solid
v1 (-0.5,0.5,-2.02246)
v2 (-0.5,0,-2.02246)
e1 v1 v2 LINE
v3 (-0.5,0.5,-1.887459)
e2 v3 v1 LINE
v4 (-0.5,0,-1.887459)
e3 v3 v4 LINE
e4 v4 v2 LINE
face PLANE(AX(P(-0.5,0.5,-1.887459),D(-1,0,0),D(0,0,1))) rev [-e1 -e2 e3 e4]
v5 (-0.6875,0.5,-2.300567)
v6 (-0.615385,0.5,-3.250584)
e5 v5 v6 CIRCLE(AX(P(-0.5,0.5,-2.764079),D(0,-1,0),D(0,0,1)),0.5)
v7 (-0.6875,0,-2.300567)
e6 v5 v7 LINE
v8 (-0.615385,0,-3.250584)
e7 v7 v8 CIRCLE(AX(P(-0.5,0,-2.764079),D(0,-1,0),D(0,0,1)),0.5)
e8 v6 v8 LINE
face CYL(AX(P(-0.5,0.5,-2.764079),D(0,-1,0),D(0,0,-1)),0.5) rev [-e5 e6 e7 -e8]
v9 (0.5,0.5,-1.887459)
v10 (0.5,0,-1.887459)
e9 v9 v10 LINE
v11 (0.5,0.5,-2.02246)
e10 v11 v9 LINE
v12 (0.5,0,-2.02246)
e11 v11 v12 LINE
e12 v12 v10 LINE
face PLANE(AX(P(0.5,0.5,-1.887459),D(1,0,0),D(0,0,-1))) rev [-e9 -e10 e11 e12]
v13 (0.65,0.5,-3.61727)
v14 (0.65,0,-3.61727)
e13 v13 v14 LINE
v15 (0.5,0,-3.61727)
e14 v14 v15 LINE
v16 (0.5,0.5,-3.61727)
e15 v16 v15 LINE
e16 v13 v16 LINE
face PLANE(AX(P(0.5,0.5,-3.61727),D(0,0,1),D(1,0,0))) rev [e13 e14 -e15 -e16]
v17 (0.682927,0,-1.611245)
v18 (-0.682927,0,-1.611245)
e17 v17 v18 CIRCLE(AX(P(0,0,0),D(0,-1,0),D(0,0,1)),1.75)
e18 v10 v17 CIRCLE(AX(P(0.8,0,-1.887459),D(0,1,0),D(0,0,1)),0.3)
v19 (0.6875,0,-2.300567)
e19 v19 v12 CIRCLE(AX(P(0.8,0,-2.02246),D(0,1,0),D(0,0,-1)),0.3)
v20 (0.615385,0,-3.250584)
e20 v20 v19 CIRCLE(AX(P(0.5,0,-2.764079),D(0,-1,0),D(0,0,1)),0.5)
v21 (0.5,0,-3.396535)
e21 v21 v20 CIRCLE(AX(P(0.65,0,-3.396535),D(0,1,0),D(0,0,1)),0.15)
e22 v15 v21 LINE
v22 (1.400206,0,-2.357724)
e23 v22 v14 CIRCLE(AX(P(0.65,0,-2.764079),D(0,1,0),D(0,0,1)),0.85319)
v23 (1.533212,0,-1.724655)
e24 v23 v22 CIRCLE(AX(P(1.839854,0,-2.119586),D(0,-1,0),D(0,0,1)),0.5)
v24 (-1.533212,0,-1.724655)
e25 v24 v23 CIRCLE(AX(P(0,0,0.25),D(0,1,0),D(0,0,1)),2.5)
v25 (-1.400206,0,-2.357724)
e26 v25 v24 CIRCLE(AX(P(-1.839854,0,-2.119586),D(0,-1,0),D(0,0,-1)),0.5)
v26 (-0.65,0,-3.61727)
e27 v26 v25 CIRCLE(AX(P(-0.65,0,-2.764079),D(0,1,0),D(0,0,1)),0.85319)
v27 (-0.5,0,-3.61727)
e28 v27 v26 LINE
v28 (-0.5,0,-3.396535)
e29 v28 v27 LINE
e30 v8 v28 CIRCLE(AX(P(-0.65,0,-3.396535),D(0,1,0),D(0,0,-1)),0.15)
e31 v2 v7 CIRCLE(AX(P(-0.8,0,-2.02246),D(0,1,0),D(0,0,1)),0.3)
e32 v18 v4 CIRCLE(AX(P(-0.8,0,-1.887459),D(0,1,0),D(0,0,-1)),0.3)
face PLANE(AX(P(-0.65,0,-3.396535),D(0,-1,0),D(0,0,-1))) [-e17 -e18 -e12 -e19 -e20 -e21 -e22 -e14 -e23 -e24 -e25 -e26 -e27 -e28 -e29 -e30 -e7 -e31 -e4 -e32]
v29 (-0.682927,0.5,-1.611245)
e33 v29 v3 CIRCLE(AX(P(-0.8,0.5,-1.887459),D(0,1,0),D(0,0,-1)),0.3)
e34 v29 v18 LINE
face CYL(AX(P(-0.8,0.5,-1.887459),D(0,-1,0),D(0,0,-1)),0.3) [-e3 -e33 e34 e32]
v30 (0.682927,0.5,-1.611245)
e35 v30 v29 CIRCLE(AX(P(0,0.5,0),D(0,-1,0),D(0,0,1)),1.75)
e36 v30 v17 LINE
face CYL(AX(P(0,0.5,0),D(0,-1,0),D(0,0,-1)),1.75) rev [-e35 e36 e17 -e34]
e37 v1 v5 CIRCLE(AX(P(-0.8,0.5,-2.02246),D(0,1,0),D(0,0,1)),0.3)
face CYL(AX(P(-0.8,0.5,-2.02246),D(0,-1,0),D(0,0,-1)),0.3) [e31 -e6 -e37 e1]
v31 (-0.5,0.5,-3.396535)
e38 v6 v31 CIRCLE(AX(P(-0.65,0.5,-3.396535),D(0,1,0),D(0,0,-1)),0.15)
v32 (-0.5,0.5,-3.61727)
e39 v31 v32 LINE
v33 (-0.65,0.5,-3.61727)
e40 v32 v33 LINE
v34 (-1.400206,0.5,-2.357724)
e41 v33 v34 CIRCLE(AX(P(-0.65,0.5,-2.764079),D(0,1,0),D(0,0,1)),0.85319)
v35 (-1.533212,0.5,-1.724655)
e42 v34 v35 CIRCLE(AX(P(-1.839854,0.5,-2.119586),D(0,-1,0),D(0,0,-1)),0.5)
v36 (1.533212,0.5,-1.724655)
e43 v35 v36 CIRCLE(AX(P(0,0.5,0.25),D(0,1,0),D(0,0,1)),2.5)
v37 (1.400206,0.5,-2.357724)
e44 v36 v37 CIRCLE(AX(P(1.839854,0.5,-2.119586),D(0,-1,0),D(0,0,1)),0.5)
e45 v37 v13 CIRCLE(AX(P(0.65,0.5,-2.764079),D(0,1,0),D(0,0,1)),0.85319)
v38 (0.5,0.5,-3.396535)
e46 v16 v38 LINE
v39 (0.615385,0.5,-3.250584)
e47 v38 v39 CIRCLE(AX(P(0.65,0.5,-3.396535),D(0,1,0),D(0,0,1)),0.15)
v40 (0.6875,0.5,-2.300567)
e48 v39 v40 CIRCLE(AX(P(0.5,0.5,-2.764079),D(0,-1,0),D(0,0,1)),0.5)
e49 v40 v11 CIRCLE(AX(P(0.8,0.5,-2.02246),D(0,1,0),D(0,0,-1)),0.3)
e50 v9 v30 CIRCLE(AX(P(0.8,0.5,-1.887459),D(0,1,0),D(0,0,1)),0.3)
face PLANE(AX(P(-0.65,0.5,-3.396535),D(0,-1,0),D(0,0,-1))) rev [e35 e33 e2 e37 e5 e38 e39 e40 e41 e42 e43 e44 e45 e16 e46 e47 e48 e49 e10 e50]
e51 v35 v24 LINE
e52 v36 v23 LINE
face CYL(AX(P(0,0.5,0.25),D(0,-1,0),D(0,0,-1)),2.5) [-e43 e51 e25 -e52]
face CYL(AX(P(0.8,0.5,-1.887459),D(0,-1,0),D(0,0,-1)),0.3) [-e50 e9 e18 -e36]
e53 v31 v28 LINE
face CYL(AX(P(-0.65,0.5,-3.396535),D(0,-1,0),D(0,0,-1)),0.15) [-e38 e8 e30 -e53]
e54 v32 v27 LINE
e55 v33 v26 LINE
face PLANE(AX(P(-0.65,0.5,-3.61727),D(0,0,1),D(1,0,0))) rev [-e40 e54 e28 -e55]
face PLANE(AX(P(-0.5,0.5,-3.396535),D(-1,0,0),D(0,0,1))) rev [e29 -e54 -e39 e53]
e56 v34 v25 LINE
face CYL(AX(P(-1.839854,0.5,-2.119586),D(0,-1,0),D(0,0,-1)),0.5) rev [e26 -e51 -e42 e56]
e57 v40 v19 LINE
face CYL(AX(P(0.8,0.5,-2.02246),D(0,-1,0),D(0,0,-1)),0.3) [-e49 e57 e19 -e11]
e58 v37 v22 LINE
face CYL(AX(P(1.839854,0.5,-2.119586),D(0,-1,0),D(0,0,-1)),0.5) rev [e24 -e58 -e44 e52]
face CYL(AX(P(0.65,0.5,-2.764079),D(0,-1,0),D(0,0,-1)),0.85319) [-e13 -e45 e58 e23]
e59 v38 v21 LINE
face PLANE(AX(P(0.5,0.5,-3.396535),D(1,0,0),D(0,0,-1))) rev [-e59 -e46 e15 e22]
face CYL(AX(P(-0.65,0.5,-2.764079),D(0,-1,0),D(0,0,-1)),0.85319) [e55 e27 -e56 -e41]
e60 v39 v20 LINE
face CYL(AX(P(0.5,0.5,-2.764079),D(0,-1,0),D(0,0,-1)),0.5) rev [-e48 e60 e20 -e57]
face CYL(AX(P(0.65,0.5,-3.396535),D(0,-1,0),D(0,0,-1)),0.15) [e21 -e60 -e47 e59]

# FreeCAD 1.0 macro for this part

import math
import FreeCAD as App
import Part
import Sketcher

V = App.Vector

doc = App.newDocument("Part")
body = doc.addObject("PartDesign::Body", "Body")

# Sketch on XZ plane
sketch1 = body.newObject("Sketcher::SketchObject", "Sketch")
sketch1.AttachmentSupport = (doc.getObject("XZ_Plane"), [""])
sketch1.MapMode = "FlatFace"
sketch1.addGeometry([
    Part.LineSegment(V(-0.5, -3.4, 0), V(-0.5, -3.62, 0)),  # 0
    Part.LineSegment(V(-0.5, -3.62, 0), V(-0.65, -3.62, 0)),  # 1
    Part.ArcOfCircle(Part.Circle(V(-0.65, -2.76, 0), V(0, 0, 1), 0.85), math.radians(152), math.radians(270)),  # 2
    Part.ArcOfCircle(Part.Circle(V(-1.84, -2.12, 0), V(0, 0, 1), 0.5), math.radians(-28), math.radians(52)),  # 3
    Part.ArcOfCircle(Part.Circle(V(0, 0.25, 0), V(0, 0, 1), 2.5), math.radians(-52), math.radians(232)),  # 4
    Part.ArcOfCircle(Part.Circle(V(1.84, -2.12, 0), V(0, 0, 1), 0.5), math.radians(128), math.radians(208)),  # 5
    Part.ArcOfCircle(Part.Circle(V(0.65, -2.76, 0), V(0, 0, 1), 0.85), math.radians(-90), math.radians(28)),  # 6
    Part.LineSegment(V(0.65, -3.62, 0), V(0.5, -3.62, 0)),  # 7
    Part.LineSegment(V(0.5, -3.62, 0), V(0.5, -3.4, 0)),  # 8
    Part.ArcOfCircle(Part.Circle(V(0.65, -3.4, 0), V(0, 0, 1), 0.15), math.radians(103), math.radians(180)),  # 9
    Part.ArcOfCircle(Part.Circle(V(0.5, -2.76, 0), V(0, 0, 1), 0.5), math.radians(-77), math.radians(68)),  # 10
    Part.ArcOfCircle(Part.Circle(V(0.8, -2.02, 0), V(0, 0, 1), 0.3), math.radians(180), math.radians(248)),  # 11
    Part.LineSegment(V(0.5, -2.02, 0), V(0.5, -1.89, 0)),  # 12
    Part.ArcOfCircle(Part.Circle(V(0.8, -1.89, 0), V(0, 0, 1), 0.3), math.radians(113), math.radians(180)),  # 13
    Part.ArcOfCircle(Part.Circle(V(0, 0, 0), V(0, 0, 1), 1.75), math.radians(-67), math.radians(247)),  # 14
    Part.ArcOfCircle(Part.Circle(V(-0.8, -1.89, 0), V(0, 0, 1), 0.3), math.radians(0), math.radians(67)),  # 15
    Part.LineSegment(V(-0.5, -1.89, 0), V(-0.5, -2.02, 0)),  # 16
    Part.ArcOfCircle(Part.Circle(V(-0.8, -2.02, 0), V(0, 0, 1), 0.3), math.radians(-68), math.radians(0)),  # 17
    Part.ArcOfCircle(Part.Circle(V(-0.5, -2.76, 0), V(0, 0, 1), 0.5), math.radians(112), math.radians(257)),  # 18
    Part.ArcOfCircle(Part.Circle(V(-0.65, -3.4, 0), V(0, 0, 1), 0.15), math.radians(0), math.radians(77)),  # 19
], False)
sketch1.addConstraint([
    Sketcher.Constraint("Coincident", 0, 2, 1, 1),
    Sketcher.Constraint("Tangent", 1, 2, 2, 2),
    Sketcher.Constraint("Tangent", 2, 1, 3, 1),
    Sketcher.Constraint("Tangent", 3, 2, 4, 2),
    Sketcher.Constraint("Tangent", 4, 1, 5, 1),
    Sketcher.Constraint("Tangent", 5, 2, 6, 2),
    Sketcher.Constraint("Tangent", 6, 1, 7, 1),
    Sketcher.Constraint("Coincident", 7, 2, 8, 1),
    Sketcher.Constraint("Tangent", 8, 2, 9, 2),
    Sketcher.Constraint("Tangent", 9, 1, 10, 1),
    Sketcher.Constraint("Tangent", 10, 2, 11, 2),
    Sketcher.Constraint("Tangent", 11, 1, 12, 1),
    Sketcher.Constraint("Tangent", 12, 2, 13, 2),
    Sketcher.Constraint("Tangent", 13, 1, 14, 1),
    Sketcher.Constraint("Tangent", 14, 2, 15, 2),
    Sketcher.Constraint("Tangent", 15, 1, 16, 1),
    Sketcher.Constraint("Tangent", 16, 2, 17, 2),
    Sketcher.Constraint("Tangent", 17, 1, 18, 1),
    Sketcher.Constraint("Tangent", 18, 2, 19, 2),
    Sketcher.Constraint("Tangent", 19, 1, 0, 1),
    Sketcher.Constraint("Vertical", 0),
    Sketcher.Constraint("Horizontal", 1),
    Sketcher.Constraint("Horizontal", 7),
    Sketcher.Constraint("Vertical", 8),
    Sketcher.Constraint("Vertical", 12),
    Sketcher.Constraint("Vertical", 16),
    Sketcher.Constraint("Coincident", 14, 3, -1, 1),
    Sketcher.Constraint("Equal", 3, 5),
    Sketcher.Constraint("Equal", 2, 6),
    Sketcher.Constraint("Equal", 5, 10),
    Sketcher.Constraint("Equal", 11, 13),
    Sketcher.Constraint("Equal", 13, 15),
    Sketcher.Constraint("Equal", 15, 17),
    Sketcher.Constraint("Equal", 10, 18),
    Sketcher.Constraint("Equal", 9, 19),
    Sketcher.Constraint("Symmetric", 3, 3, 5, 3, -2),
    Sketcher.Constraint("Symmetric", 11, 3, 17, 3, -2),
    Sketcher.Constraint("Symmetric", 9, 3, 19, 3, -2),
    Sketcher.Constraint("Horizontal", 2, 3, 6, 3),
    Sketcher.Constraint("Horizontal", 6, 3, 10, 3),
    Sketcher.Constraint("Vertical", 6, 3, 9, 3),
    Sketcher.Constraint("Vertical", 18, 3, 0, 2),
    Sketcher.Constraint("Vertical", 8, 2, 11, 1),
    Sketcher.Constraint("Radius", 3, 0.5),
    Sketcher.Constraint("Radius", 4, 2.5),
    Sketcher.Constraint("Radius", 11, 0.3),
    Sketcher.Constraint("Radius", 9, 0.15),
    Sketcher.Constraint("Radius", 14, 1.75),
    Sketcher.Constraint("DistanceX", 18, 3, 10, 3, 1.0),
    Sketcher.Constraint("DistanceY", 12, 1, 12, 2, 0.135001),
    Sketcher.Constraint("DistanceY", -1, 1, 4, 3, 0.25),
    Sketcher.Constraint("Radius", 2, 0.85319),
])
pad1 = body.newObject("PartDesign::Pad", "Pad")
pad1.Profile = sketch1
pad1.Length = 0.5
pad1.Reversed = True

doc.recompute()
